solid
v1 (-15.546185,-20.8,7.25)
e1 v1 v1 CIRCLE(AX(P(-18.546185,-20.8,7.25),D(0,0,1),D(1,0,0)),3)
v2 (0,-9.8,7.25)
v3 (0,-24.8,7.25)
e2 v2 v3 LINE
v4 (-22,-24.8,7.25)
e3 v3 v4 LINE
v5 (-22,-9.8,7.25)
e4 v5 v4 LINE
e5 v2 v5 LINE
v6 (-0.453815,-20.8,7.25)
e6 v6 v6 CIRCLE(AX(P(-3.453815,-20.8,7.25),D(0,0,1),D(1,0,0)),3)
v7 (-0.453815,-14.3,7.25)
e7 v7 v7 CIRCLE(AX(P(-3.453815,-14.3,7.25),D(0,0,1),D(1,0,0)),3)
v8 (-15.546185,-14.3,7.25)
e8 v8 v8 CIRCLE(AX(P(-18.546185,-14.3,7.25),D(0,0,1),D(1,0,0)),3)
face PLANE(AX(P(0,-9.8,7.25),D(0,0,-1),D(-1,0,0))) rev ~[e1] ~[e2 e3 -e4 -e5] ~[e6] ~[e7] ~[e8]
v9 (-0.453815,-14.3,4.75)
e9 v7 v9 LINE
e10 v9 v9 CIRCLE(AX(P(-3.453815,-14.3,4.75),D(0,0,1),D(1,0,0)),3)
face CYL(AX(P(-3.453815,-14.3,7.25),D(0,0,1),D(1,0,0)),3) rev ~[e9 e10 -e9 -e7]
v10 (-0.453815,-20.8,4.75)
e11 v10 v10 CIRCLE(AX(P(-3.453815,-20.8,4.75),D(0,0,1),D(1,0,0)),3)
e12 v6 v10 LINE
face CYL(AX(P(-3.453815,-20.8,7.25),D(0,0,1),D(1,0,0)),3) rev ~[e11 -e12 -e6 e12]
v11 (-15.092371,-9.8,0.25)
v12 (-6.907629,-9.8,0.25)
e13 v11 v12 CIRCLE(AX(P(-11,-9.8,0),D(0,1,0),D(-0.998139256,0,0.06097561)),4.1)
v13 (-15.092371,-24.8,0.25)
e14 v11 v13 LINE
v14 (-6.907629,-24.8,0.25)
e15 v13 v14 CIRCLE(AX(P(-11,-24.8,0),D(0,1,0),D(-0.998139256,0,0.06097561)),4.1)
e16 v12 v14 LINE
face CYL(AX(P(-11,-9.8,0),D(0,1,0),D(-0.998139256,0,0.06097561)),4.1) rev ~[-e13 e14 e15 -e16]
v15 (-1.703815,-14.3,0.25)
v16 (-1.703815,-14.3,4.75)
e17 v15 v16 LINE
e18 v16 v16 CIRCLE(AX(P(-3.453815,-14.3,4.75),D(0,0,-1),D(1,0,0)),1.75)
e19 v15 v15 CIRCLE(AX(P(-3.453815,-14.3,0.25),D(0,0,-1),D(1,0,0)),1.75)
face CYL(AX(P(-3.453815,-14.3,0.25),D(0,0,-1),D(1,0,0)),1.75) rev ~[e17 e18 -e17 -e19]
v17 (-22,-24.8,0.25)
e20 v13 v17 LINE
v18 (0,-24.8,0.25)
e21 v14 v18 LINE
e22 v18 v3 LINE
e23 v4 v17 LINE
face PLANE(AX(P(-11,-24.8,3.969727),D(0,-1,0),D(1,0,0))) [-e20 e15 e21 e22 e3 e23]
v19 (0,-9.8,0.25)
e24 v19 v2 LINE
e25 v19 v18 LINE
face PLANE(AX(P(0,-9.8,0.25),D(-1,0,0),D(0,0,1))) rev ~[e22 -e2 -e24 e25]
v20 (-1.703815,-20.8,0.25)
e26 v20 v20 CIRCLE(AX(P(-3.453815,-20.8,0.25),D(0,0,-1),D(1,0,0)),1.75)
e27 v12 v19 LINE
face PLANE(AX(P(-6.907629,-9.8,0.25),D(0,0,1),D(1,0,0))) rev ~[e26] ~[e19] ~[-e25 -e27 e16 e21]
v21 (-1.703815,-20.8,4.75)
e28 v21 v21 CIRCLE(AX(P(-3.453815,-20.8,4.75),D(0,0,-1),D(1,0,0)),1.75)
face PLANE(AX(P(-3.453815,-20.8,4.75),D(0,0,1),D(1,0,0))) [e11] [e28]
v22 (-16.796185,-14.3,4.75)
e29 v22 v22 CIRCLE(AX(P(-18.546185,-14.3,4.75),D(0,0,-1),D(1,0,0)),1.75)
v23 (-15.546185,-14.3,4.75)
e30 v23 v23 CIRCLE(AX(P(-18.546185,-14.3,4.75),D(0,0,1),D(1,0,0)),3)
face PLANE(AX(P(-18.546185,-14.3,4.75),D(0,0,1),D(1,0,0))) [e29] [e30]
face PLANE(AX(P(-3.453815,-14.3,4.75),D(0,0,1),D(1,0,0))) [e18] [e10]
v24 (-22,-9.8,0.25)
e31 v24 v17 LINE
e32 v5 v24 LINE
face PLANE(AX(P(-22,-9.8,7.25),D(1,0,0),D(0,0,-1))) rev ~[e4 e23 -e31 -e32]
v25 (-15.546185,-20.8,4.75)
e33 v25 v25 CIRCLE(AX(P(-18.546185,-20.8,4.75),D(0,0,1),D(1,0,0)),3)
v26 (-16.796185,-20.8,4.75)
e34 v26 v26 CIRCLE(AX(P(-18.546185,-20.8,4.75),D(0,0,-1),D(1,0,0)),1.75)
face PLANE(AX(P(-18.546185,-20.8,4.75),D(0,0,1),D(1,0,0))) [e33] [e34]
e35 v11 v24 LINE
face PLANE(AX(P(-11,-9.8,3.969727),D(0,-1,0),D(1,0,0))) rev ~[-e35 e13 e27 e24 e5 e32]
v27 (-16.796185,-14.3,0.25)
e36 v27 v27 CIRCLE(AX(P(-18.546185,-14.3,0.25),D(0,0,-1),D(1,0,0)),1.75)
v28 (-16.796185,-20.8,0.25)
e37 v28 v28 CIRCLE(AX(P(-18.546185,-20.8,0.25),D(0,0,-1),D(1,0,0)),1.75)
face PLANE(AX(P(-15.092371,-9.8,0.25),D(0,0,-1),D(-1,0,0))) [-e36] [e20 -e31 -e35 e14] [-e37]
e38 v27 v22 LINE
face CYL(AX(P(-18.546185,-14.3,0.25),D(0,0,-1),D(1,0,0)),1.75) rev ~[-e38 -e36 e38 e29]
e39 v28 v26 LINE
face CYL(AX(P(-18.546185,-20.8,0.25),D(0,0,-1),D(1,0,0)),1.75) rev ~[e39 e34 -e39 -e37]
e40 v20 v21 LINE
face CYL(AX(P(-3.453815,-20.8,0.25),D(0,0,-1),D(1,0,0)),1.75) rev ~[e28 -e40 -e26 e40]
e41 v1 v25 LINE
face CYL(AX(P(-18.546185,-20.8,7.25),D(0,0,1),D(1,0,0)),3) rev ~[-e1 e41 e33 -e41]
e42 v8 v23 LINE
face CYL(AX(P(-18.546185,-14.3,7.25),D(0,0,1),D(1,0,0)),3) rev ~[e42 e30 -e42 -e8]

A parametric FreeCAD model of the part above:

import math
import FreeCAD as App
import Part
import Sketcher

V = App.Vector
Q = App.Units.Quantity

doc = App.newDocument("Part")
params = doc.addObject("Spreadsheet::Sheet", "Params")
for row, (alias, value) in enumerate([
    ("sketch1_radius", "4.1 mm"),
    ("sketch1_width", "22 mm"),
    ("sketch1_height", "7 mm"),
    ("pad1_length", "15 mm"),
    ("sketch2_diameter", "3.5 mm"),
    ("sketch3_diameter", "6 mm"),
    ("pocket2_length", "2.5 mm"),
], start=1):
    params.set(f"A{row}", alias)
    params.set(f"B{row}", "=" + value)
    params.setAlias(f"B{row}", alias)

body = doc.addObject("PartDesign::Body", "Body")

# Sketch on XZ plane
sketch1 = doc.addObject("Sketcher::SketchObject", "Sketch")
body.addObject(sketch1)
sketch1.AttachmentSupport = (doc.XZ_Plane, [""])
sketch1.MapMode = "FlatFace"
sketch1.AttachmentOffset = App.Placement(V(0, 0, 9.8), App.Rotation())
sketch1.addGeometry(Part.ArcOfCircle(Part.Circle(V(-11, 0, 0), V(0, 0, 1), 4.1), math.radians(3), math.radians(177)), False)
sketch1.addGeometry(Part.LineSegment(V(-15.1, 0.2, 0), V(-22, 0.2, 0)), False)
sketch1.addGeometry(Part.LineSegment(V(-22, 0.2, 0), V(-22, 7.2, 0)), False)
sketch1.addGeometry(Part.LineSegment(V(-22, 7.2, 0), V(0, 7.2, 0)), False)
sketch1.addGeometry(Part.LineSegment(V(0, 7.2, 0), V(0, 0.2, 0)), False)
sketch1.addGeometry(Part.LineSegment(V(0, 0.2, 0), V(-6.9, 0.2, 0)), False)
sketch1.addConstraint(Sketcher.Constraint("Coincident", 0, 2, 1, 1))
sketch1.addConstraint(Sketcher.Constraint("Coincident", 1, 2, 2, 1))
sketch1.addConstraint(Sketcher.Constraint("Coincident", 2, 2, 3, 1))
sketch1.addConstraint(Sketcher.Constraint("Coincident", 3, 2, 4, 1))
sketch1.addConstraint(Sketcher.Constraint("Coincident", 4, 2, 5, 1))
sketch1.addConstraint(Sketcher.Constraint("Coincident", 5, 2, 0, 1))
sketch1.addConstraint(Sketcher.Constraint("Horizontal", 1))
sketch1.addConstraint(Sketcher.Constraint("Vertical", 2))
sketch1.addConstraint(Sketcher.Constraint("Horizontal", 3))
sketch1.addConstraint(Sketcher.Constraint("Vertical", 4))
sketch1.addConstraint(Sketcher.Constraint("Horizontal", 5))
sketch1.addConstraint(Sketcher.Constraint("PointOnObject", 0, 3, -1))
sketch1.addConstraint(Sketcher.Constraint("PointOnObject", 3, 2, -2))
sketch1.addConstraint(Sketcher.Constraint("Horizontal", 1, 2, 4, 2))
sketch1.addConstraint(Sketcher.Constraint("Equal", 1, 5))
sketch1.addConstraint(Sketcher.Constraint("Radius", 0, Q("4.1 mm")))
sketch1.addConstraint(Sketcher.Constraint("DistanceX", 3, 1, 3, 2, Q("22 mm")))
sketch1.addConstraint(Sketcher.Constraint("DistanceY", 2, 1, 2, 2, Q("7 mm")))
sketch1.addConstraint(Sketcher.Constraint("DistanceY", -1, 1, 0, 2, Q("0.25 mm")))
sketch1.setExpression("Constraints[15]", "Params.sketch1_radius")
sketch1.setExpression("Constraints[16]", "Params.sketch1_width")
sketch1.setExpression("Constraints[17]", "Params.sketch1_height")
pad1 = doc.addObject("PartDesign::Pad", "Pad")
body.addObject(pad1)
pad1.Profile = sketch1
pad1.setExpression("Length", "Params.pad1_length")

# Sketch on XY plane
sketch2 = doc.addObject("Sketcher::SketchObject", "Sketch001")
body.addObject(sketch2)
sketch2.AttachmentSupport = (doc.XY_Plane, [""])
sketch2.MapMode = "FlatFace"
sketch2.AttachmentOffset = App.Placement(V(0, 0, 0.25), App.Rotation())
sketch2.addGeometry(Part.Circle(V(-18.5, -14.3, 0), V(0, 0, 1), 1.8), False)
sketch2.addGeometry(Part.Circle(V(-18.5, -20.8, 0), V(0, 0, 1), 1.8), False)
sketch2.addGeometry(Part.Circle(V(-3.5, -20.8, 0), V(0, 0, 1), 1.8), False)
sketch2.addGeometry(Part.Circle(V(-3.5, -14.3, 0), V(0, 0, 1), 1.8), False)
sketch2.addConstraint(Sketcher.Constraint("Equal", 0, 1))
sketch2.addConstraint(Sketcher.Constraint("Equal", 1, 2))
sketch2.addConstraint(Sketcher.Constraint("Equal", 2, 3))
sketch2.addConstraint(Sketcher.Constraint("Horizontal", 1, 3, 2, 3))
sketch2.addConstraint(Sketcher.Constraint("Horizontal", 0, 3, 3, 3))
sketch2.addConstraint(Sketcher.Constraint("Vertical", 0, 3, 1, 3))
sketch2.addConstraint(Sketcher.Constraint("Vertical", 2, 3, 3, 3))
sketch2.addConstraint(Sketcher.Constraint("Diameter", 0, Q("3.5 mm")))
sketch2.addConstraint(Sketcher.Constraint("DistanceY", 0, 3, -1, 1, Q("14.3 mm")))
sketch2.addConstraint(Sketcher.Constraint("DistanceY", 1, 3, -1, 1, Q("20.8 mm")))
sketch2.addConstraint(Sketcher.Constraint("DistanceX", 1, 3, 2, 3, Q("15.092371 mm")))
sketch2.addConstraint(Sketcher.Constraint("DistanceX", 0, 3, -1, 1, Q("18.546185 mm")))
sketch2.setExpression("Constraints[7]", "Params.sketch2_diameter")
pocket1 = doc.addObject("PartDesign::Pocket", "Pocket")
body.addObject(pocket1)
pocket1.Profile = sketch2
pocket1.Type = "ThroughAll"
pocket1.Reversed = True

# Sketch on XY plane
sketch3 = doc.addObject("Sketcher::SketchObject", "Sketch002")
body.addObject(sketch3)
sketch3.AttachmentSupport = (doc.XY_Plane, [""])
sketch3.MapMode = "FlatFace"
sketch3.AttachmentOffset = App.Placement(V(0, 0, 7.25), App.Rotation())
sketch3.addGeometry(Part.Circle(V(-18.5, -14.3, 0), V(0, 0, 1), 3), False)
sketch3.addGeometry(Part.Circle(V(-18.5, -20.8, 0), V(0, 0, 1), 3), False)
sketch3.addGeometry(Part.Circle(V(-3.5, -20.8, 0), V(0, 0, 1), 3), False)
sketch3.addGeometry(Part.Circle(V(-3.5, -14.3, 0), V(0, 0, 1), 3), False)
sketch3.addConstraint(Sketcher.Constraint("Equal", 0, 1))
sketch3.addConstraint(Sketcher.Constraint("Equal", 1, 2))
sketch3.addConstraint(Sketcher.Constraint("Equal", 2, 3))
sketch3.addConstraint(Sketcher.Constraint("Horizontal", 1, 3, 2, 3))
sketch3.addConstraint(Sketcher.Constraint("Horizontal", 0, 3, 3, 3))
sketch3.addConstraint(Sketcher.Constraint("Vertical", 0, 3, 1, 3))
sketch3.addConstraint(Sketcher.Constraint("Vertical", 2, 3, 3, 3))
sketch3.addConstraint(Sketcher.Constraint("Diameter", 0, Q("6 mm")))
sketch3.addConstraint(Sketcher.Constraint("DistanceY", 0, 3, -1, 1, Q("14.3 mm")))
sketch3.addConstraint(Sketcher.Constraint("DistanceY", 1, 3, -1, 1, Q("20.8 mm")))
sketch3.addConstraint(Sketcher.Constraint("DistanceX", 1, 3, 2, 3, Q("15.092371 mm")))
sketch3.addConstraint(Sketcher.Constraint("DistanceX", 0, 3, -1, 1, Q("18.546185 mm")))
sketch3.setExpression("Constraints[7]", "Params.sketch3_diameter")
pocket2 = doc.addObject("PartDesign::Pocket", "Pocket001")
body.addObject(pocket2)
pocket2.Profile = sketch3
pocket2.setExpression("Length", "Params.pocket2_length")

doc.recompute()
